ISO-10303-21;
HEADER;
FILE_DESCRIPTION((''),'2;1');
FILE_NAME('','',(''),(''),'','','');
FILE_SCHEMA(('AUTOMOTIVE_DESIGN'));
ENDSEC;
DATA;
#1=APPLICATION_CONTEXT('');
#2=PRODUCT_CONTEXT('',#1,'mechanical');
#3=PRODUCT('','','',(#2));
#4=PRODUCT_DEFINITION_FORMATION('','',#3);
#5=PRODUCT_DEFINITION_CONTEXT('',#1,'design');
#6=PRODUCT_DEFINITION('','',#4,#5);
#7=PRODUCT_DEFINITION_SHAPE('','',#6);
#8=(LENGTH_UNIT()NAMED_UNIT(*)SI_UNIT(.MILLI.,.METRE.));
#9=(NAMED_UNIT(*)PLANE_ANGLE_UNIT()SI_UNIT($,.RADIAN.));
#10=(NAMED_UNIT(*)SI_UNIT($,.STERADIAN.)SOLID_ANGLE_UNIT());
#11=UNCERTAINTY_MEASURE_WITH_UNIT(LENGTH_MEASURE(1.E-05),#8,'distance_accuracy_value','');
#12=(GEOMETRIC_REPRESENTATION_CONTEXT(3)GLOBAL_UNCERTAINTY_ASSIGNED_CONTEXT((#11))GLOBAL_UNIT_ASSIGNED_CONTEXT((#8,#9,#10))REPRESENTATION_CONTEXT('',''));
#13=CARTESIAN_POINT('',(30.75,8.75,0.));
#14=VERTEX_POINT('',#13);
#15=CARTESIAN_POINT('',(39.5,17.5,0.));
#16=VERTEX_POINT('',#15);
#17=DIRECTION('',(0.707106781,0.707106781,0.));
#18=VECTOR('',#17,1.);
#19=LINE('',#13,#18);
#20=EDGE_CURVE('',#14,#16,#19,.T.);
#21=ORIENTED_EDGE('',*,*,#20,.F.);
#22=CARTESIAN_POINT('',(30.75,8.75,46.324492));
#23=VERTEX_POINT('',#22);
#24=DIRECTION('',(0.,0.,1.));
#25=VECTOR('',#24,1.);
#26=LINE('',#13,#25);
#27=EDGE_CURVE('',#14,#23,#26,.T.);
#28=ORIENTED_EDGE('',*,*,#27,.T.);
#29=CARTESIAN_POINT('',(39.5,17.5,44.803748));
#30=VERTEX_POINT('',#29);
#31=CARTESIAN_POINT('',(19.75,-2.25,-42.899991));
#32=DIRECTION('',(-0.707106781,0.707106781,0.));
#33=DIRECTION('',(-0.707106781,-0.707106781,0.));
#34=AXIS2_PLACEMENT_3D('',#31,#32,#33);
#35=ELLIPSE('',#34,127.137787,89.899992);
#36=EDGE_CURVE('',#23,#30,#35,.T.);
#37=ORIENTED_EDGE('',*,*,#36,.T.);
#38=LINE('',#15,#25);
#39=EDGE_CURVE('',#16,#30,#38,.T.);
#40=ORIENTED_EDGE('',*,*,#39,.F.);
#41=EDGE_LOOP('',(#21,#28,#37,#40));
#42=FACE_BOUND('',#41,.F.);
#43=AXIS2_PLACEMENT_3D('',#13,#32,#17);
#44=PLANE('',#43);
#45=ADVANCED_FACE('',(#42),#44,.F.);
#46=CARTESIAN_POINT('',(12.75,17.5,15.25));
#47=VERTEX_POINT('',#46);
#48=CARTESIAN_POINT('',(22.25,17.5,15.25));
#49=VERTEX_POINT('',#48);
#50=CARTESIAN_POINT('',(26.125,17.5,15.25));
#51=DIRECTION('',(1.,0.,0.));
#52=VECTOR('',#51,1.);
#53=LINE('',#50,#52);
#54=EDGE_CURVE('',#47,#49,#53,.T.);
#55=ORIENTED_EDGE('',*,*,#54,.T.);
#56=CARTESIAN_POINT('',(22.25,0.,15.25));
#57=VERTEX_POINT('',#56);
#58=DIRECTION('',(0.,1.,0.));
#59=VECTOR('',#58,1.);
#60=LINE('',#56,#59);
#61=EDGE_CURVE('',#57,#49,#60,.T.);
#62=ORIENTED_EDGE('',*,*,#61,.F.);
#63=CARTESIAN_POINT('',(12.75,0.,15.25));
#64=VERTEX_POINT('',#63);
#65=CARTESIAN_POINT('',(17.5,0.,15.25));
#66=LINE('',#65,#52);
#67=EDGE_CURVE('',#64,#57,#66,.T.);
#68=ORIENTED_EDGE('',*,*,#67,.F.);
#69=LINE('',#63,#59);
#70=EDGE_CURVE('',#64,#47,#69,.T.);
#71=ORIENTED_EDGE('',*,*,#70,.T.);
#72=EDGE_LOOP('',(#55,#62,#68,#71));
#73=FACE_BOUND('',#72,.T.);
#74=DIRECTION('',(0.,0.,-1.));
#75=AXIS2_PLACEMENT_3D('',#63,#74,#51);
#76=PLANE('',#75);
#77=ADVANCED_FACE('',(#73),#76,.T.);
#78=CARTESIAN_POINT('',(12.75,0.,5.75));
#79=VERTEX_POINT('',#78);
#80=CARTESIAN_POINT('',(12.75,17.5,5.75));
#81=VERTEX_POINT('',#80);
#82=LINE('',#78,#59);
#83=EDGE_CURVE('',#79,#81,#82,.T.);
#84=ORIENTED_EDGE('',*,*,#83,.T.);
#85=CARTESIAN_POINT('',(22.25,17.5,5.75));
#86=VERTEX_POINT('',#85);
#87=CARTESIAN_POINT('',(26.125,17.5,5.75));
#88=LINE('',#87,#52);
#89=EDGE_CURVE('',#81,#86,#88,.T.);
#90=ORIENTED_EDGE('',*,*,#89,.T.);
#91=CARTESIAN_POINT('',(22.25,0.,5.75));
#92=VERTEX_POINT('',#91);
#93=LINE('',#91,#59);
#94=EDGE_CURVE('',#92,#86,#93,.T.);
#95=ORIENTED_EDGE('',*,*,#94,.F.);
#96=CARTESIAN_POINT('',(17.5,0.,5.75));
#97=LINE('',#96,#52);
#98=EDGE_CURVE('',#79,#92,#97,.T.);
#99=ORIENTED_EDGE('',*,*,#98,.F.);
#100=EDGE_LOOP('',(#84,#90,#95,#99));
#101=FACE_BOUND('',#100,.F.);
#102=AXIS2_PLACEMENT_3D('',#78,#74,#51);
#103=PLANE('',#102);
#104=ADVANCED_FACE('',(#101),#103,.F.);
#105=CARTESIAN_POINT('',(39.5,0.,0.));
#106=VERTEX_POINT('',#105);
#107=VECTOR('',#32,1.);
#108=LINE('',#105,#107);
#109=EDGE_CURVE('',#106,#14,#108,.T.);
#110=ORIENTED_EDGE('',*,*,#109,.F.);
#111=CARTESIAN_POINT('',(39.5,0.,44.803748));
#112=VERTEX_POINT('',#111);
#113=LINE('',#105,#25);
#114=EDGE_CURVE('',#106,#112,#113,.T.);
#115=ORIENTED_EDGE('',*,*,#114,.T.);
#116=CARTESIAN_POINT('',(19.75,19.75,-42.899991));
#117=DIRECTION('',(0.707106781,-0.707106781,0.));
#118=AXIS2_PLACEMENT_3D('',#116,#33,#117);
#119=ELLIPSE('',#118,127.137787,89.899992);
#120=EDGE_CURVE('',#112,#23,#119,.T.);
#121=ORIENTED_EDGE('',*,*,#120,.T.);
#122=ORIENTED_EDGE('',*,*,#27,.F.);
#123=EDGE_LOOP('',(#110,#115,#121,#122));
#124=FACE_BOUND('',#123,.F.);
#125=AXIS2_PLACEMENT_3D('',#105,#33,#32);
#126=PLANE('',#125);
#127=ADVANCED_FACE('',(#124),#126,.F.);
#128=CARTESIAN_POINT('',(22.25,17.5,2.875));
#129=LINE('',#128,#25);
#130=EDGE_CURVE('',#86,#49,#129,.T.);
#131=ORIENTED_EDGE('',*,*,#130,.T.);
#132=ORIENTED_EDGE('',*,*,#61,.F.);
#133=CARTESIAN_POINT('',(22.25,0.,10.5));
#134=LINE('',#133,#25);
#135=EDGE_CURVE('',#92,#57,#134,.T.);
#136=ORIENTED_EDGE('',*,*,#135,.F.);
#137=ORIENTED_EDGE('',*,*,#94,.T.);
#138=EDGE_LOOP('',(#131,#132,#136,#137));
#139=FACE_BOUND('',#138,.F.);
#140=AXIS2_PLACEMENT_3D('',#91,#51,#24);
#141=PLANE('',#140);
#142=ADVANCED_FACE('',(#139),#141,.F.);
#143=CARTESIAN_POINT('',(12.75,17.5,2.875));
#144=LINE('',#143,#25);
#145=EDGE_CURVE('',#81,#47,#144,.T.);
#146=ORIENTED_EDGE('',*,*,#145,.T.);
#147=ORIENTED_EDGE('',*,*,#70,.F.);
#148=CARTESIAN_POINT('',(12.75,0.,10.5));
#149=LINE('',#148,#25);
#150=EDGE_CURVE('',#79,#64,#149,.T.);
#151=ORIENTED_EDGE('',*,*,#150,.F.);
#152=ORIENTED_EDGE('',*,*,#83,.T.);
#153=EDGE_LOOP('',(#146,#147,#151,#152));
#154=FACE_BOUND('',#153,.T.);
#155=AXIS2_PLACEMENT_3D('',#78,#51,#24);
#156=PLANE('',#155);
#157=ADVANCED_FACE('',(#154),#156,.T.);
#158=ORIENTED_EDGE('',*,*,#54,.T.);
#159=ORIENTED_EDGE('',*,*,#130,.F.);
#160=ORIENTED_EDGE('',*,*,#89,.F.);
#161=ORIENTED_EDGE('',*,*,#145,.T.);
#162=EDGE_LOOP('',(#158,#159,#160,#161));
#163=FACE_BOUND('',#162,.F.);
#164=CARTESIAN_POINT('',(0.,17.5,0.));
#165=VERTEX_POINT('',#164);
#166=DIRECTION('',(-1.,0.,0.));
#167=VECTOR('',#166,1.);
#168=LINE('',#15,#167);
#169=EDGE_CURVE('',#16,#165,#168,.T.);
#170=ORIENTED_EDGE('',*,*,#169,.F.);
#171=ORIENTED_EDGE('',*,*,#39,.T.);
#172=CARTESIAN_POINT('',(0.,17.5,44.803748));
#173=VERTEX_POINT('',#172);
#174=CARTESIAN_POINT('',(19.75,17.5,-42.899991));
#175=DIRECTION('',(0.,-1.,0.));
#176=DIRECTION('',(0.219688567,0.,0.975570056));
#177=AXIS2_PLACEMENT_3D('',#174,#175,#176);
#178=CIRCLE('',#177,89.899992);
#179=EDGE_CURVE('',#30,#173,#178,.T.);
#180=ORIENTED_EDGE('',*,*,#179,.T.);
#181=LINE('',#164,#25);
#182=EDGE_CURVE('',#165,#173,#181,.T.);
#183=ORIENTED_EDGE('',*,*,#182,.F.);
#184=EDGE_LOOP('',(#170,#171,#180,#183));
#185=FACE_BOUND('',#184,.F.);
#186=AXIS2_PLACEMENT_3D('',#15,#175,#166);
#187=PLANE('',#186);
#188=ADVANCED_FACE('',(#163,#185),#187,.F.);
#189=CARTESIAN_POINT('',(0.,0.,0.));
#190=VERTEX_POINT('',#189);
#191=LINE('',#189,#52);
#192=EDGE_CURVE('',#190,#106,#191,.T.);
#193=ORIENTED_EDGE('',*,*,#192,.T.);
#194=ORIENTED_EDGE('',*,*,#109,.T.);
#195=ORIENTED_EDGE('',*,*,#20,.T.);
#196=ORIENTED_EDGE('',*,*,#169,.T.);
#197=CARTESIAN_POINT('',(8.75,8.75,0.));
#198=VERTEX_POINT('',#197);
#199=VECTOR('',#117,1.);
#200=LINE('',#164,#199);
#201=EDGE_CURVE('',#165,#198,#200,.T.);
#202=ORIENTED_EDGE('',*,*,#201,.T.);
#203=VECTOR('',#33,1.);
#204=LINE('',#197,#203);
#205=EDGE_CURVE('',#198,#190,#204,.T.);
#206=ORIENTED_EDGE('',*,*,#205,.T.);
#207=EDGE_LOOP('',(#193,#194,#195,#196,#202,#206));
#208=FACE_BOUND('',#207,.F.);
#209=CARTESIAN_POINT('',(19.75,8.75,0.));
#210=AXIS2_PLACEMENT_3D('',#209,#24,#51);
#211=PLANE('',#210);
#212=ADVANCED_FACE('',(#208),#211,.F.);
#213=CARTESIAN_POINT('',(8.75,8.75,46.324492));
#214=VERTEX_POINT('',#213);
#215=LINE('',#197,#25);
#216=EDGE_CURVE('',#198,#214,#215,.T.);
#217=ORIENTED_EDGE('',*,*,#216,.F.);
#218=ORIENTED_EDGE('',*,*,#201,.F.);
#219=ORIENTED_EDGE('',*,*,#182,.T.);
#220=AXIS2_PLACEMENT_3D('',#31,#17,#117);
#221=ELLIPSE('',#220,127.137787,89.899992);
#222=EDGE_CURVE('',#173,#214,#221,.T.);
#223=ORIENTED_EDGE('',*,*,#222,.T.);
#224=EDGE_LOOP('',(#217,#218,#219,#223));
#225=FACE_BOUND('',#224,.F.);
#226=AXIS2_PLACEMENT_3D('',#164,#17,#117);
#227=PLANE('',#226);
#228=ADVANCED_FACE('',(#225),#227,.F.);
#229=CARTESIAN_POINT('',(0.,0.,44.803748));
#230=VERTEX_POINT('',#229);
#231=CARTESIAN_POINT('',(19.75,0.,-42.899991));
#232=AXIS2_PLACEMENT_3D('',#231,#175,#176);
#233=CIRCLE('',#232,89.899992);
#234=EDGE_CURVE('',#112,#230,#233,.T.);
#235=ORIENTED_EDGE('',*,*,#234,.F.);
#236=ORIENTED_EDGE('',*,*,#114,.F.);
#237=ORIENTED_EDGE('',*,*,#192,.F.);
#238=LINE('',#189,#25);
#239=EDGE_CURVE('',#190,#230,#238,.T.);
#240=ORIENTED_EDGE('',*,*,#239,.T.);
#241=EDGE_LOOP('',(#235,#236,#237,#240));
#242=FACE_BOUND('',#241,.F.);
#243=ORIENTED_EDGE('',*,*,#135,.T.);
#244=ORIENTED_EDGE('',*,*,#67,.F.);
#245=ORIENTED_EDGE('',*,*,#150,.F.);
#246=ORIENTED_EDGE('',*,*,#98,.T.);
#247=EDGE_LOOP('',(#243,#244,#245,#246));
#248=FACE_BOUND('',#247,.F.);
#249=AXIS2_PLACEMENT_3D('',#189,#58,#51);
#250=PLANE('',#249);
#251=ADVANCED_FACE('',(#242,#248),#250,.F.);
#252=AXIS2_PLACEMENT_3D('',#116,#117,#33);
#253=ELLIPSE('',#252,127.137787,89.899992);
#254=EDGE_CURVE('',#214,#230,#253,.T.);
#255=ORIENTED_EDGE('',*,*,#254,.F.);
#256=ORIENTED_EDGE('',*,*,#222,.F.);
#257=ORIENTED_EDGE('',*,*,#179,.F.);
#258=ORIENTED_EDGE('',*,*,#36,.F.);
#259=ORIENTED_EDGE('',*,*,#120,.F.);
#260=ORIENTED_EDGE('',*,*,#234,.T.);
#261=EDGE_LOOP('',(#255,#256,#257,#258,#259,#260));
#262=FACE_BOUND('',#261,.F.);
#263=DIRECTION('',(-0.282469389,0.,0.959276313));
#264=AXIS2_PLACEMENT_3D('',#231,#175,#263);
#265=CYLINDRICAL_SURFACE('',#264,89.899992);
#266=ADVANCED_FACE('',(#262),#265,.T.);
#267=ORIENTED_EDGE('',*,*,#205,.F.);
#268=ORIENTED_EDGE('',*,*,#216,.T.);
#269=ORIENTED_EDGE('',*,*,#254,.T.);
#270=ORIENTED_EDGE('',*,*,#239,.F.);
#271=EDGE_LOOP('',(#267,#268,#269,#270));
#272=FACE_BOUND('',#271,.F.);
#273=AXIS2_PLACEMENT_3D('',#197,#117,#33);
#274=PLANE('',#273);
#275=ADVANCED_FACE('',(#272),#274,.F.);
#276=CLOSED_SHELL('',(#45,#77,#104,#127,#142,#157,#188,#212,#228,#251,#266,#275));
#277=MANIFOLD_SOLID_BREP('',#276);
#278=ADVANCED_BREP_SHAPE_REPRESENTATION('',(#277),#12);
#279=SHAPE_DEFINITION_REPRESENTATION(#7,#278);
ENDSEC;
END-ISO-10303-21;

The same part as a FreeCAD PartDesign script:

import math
import FreeCAD as App
import Part
import Sketcher
from FreeCAD import Vector
Q = App.Units.Quantity

doc = App.newDocument("Part")
body = doc.addObject("PartDesign::Body", "Body")

# Sketch on XY plane
sketch1 = body.newObject("Sketcher::SketchObject", "Sketch")
sketch1.AttachmentSupport = (doc.getObject("XY_Plane"), [""])
sketch1.MapMode = "FlatFace"
sketch1.addGeometry(Part.LineSegment(Vector(8.75, 8.75, 0), Vector(0, 0, 0)), False)
sketch1.addGeometry(Part.LineSegment(Vector(0, 0, 0), Vector(39.5, 0, 0)), False)
sketch1.addGeometry(Part.LineSegment(Vector(39.5, 0, 0), Vector(30.75, 8.75, 0)), False)
sketch1.addGeometry(Part.LineSegment(Vector(30.75, 8.75, 0), Vector(39.5, 17.5, 0)), False)
sketch1.addGeometry(Part.LineSegment(Vector(39.5, 17.5, 0), Vector(0, 17.5, 0)), False)
sketch1.addGeometry(Part.LineSegment(Vector(0, 17.5, 0), Vector(8.75, 8.75, 0)), False)
sketch1.addConstraint(Sketcher.Constraint("Coincident", 0, 2, 1, 1))
sketch1.addConstraint(Sketcher.Constraint("Coincident", 1, 2, 2, 1))
sketch1.addConstraint(Sketcher.Constraint("Coincident", 2, 2, 3, 1))
sketch1.addConstraint(Sketcher.Constraint("Coincident", 3, 2, 4, 1))
sketch1.addConstraint(Sketcher.Constraint("Coincident", 4, 2, 5, 1))
sketch1.addConstraint(Sketcher.Constraint("Coincident", 5, 2, 0, 1))
sketch1.addConstraint(Sketcher.Constraint("Horizontal", 1))
sketch1.addConstraint(Sketcher.Constraint("Horizontal", 4))
sketch1.addConstraint(Sketcher.Constraint("Coincident", 0, 2, -1, 1))
sketch1.addConstraint(Sketcher.Constraint("PointOnObject", 4, 2, -2))
sketch1.addConstraint(Sketcher.Constraint("Perpendicular", 0, 2))
sketch1.addConstraint(Sketcher.Constraint("Perpendicular", 2, 3))
sketch1.addConstraint(Sketcher.Constraint("Perpendicular", 3, 5))
sketch1.addConstraint(Sketcher.Constraint("Horizontal", 2, 2, 5, 2))
sketch1.addConstraint(Sketcher.Constraint("Vertical", 1, 2, 3, 2))
sketch1.addConstraint(Sketcher.Constraint("DistanceX", 1, 1, 1, 2, Q("39.5 mm")))
sketch1.addConstraint(Sketcher.Constraint("DistanceX", 5, 2, 2, 2, Q("22 mm")))
pad1 = body.newObject("PartDesign::Pad", "Pad")
pad1.Profile = sketch1
pad1.Length = 47

# Sketch on XZ plane
sketch2 = body.newObject("Sketcher::SketchObject", "Sketch001")
sketch2.AttachmentSupport = (doc.getObject("XZ_Plane"), [""])
sketch2.MapMode = "FlatFace"
sketch2.addGeometry(Part.ArcOfCircle(Part.Circle(Vector(19.75, -42.899991, 0), Vector(0, 0, 1), 89.899992), math.radians(75.361533), math.radians(106.407641)), False)
sketch2.addGeometry(Part.LineSegment(Vector(42.469436, 44.081821, 0), Vector(45.143996, 47.1, 0)), False)
sketch2.addGeometry(Part.LineSegment(Vector(45.143996, 47.1, 0), Vector(-5.643996, 47.1, 0)), False)
sketch2.addGeometry(Part.LineSegment(Vector(-5.643996, 47.1, 0), Vector(-5.643996, 43.338941, 0)), False)
sketch2.addConstraint(Sketcher.Constraint("Coincident", 0, 1, 1, 1))
sketch2.addConstraint(Sketcher.Constraint("Coincident", 1, 2, 2, 1))
sketch2.addConstraint(Sketcher.Constraint("Coincident", 2, 2, 3, 1))
sketch2.addConstraint(Sketcher.Constraint("Coincident", 3, 2, 0, 2))
sketch2.addConstraint(Sketcher.Constraint("Horizontal", 2))
sketch2.addConstraint(Sketcher.Constraint("Vertical", 3))
sketch2.addConstraint(Sketcher.Constraint("DistanceY", -1, 1, 1, 2, Q("47.1 mm")))
sketch2.addConstraint(Sketcher.Constraint("DistanceX", -1, 1, 0, 3, Q("19.75 mm")))
sketch2.addConstraint(Sketcher.Constraint("Radius", 0, Q("89.899992 mm")))
sketch2.addConstraint(Sketcher.Constraint("Distance", 1, Q("4.032701 mm")))
sketch2.addConstraint(Sketcher.Constraint("DistanceY", 3, 2, 3, 1, Q("3.761059 mm")))
sketch2.addConstraint(Sketcher.Constraint("DistanceX", 2, 2, 2, 1, Q("50.787992 mm")))
sketch2.addConstraint(Sketcher.Constraint("DistanceY", 0, 3, -1, 1, Q("42.899991 mm")))
pocket1 = body.newObject("PartDesign::Pocket", "Pocket")
pocket1.Profile = sketch2
pocket1.Length = 25

# Sketch on XZ plane
sketch3 = body.newObject("Sketcher::SketchObject", "Sketch002")
sketch3.AttachmentSupport = (doc.getObject("XZ_Plane"), [""])
sketch3.MapMode = "FlatFace"
sketch3.addGeometry(Part.LineSegment(Vector(12.75, 15.25, 0), Vector(12.75, 5.75, 0)), False)
sketch3.addGeometry(Part.LineSegment(Vector(12.75, 5.75, 0), Vector(22.25, 5.75, 0)), False)
sketch3.addGeometry(Part.LineSegment(Vector(22.25, 5.75, 0), Vector(22.25, 15.25, 0)), False)
sketch3.addGeometry(Part.LineSegment(Vector(22.25, 15.25, 0), Vector(12.75, 15.25, 0)), False)
sketch3.addConstraint(Sketcher.Constraint("Coincident", 0, 2, 1, 1))
sketch3.addConstraint(Sketcher.Constraint("Coincident", 1, 2, 2, 1))
sketch3.addConstraint(Sketcher.Constraint("Coincident", 2, 2, 3, 1))
sketch3.addConstraint(Sketcher.Constraint("Coincident", 3, 2, 0, 1))
sketch3.addConstraint(Sketcher.Constraint("Vertical", 0))
sketch3.addConstraint(Sketcher.Constraint("Horizontal", 1))
sketch3.addConstraint(Sketcher.Constraint("Vertical", 2))
sketch3.addConstraint(Sketcher.Constraint("Horizontal", 3))
sketch3.addConstraint(Sketcher.Constraint("Equal", 3, 0))
sketch3.addConstraint(Sketcher.Constraint("DistanceX", 1, 1, 1, 2, Q("9.5 mm")))
sketch3.addConstraint(Sketcher.Constraint("DistanceX", -1, 1, 0, 2, Q("12.75 mm")))
sketch3.addConstraint(Sketcher.Constraint("DistanceY", -1, 1, 0, 2, Q("5.75 mm")))
pocket2 = body.newObject("PartDesign::Pocket", "Pocket001")
pocket2.Profile = sketch3
pocket2.Length = 25

doc.recompute()
